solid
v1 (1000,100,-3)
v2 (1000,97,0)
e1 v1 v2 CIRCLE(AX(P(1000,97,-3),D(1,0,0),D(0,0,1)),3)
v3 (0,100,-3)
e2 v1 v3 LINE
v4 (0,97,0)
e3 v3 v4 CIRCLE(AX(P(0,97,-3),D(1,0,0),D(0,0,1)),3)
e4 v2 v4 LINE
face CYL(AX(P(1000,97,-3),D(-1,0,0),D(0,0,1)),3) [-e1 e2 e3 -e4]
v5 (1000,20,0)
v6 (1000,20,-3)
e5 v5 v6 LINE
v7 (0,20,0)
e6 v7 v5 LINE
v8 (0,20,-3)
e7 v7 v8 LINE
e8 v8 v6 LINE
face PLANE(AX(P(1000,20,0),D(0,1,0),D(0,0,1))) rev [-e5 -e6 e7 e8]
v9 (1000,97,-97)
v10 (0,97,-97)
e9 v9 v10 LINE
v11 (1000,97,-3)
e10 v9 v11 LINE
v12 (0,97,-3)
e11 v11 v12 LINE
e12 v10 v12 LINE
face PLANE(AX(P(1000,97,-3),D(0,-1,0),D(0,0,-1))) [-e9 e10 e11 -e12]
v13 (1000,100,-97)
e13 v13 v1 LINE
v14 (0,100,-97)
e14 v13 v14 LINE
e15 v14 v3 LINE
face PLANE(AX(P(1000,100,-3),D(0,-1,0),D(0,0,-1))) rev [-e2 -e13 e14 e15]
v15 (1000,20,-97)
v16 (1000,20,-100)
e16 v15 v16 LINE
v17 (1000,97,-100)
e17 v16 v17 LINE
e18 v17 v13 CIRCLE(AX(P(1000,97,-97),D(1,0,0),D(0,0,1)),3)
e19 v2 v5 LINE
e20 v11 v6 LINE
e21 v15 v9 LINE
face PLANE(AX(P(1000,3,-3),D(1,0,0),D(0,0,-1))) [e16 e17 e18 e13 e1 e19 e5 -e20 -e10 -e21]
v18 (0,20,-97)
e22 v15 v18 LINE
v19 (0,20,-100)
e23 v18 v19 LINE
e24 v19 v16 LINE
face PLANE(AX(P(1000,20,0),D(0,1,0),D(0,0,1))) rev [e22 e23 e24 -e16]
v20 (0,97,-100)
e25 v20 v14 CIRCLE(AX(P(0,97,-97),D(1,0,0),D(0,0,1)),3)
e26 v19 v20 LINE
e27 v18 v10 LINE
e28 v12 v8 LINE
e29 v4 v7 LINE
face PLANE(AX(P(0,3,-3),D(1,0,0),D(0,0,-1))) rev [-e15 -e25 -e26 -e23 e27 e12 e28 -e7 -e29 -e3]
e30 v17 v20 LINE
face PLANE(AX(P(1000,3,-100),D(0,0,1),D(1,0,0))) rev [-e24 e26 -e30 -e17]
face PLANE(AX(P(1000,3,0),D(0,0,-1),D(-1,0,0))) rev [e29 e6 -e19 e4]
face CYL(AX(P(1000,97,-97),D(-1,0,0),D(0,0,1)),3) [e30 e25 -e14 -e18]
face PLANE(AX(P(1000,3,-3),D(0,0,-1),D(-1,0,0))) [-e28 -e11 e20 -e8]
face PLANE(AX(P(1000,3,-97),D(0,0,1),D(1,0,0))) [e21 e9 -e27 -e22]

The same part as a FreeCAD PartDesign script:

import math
import FreeCAD as App
import Part
import Sketcher
Q = App.Units.Quantity

doc = App.newDocument("Part")
body = doc.addObject("PartDesign::Body", "Body")

# Sketch on YZ plane
sketch1 = body.newObject("Sketcher::SketchObject", "Sketch")
sketch1.AttachmentSupport = (doc.getObject("YZ_Plane"), [""])
sketch1.MapMode = "FlatFace"
sketch1.addGeometry([
    Part.LineSegment(App.Vector(97, 0, 0), App.Vector(3, 0, 0)),  # 0
    Part.ArcOfCircle(Part.Circle(App.Vector(3, -3, 0), App.Vector(0, 0, 1), 3), math.radians(90), math.radians(180)),  # 1
    Part.LineSegment(App.Vector(0, -3, 0), App.Vector(0, -97, 0)),  # 2
    Part.ArcOfCircle(Part.Circle(App.Vector(3, -97, 0), App.Vector(0, 0, 1), 3), math.radians(180), math.radians(270)),  # 3
    Part.LineSegment(App.Vector(3, -100, 0), App.Vector(97, -100, 0)),  # 4
    Part.ArcOfCircle(Part.Circle(App.Vector(97, -97, 0), App.Vector(0, 0, 1), 3), math.radians(-90), math.radians(0)),  # 5
    Part.LineSegment(App.Vector(100, -97, 0), App.Vector(100, -3, 0)),  # 6
    Part.ArcOfCircle(Part.Circle(App.Vector(97, -3, 0), App.Vector(0, 0, 1), 3), math.radians(0), math.radians(90)),  # 7
    Part.LineSegment(App.Vector(3, -97, 0), App.Vector(3, -3, 0)),  # 8
    Part.LineSegment(App.Vector(3, -3, 0), App.Vector(97, -3, 0)),  # 9
    Part.LineSegment(App.Vector(97, -3, 0), App.Vector(97, -97, 0)),  # 10
    Part.LineSegment(App.Vector(97, -97, 0), App.Vector(3, -97, 0)),  # 11
], False)
sketch1.addConstraint([
    Sketcher.Constraint("Tangent", 0, 2, 1, 1),
    Sketcher.Constraint("Tangent", 1, 2, 2, 1),
    Sketcher.Constraint("Tangent", 2, 2, 3, 1),
    Sketcher.Constraint("Tangent", 3, 2, 4, 1),
    Sketcher.Constraint("Tangent", 4, 2, 5, 1),
    Sketcher.Constraint("Tangent", 5, 2, 6, 1),
    Sketcher.Constraint("Tangent", 6, 2, 7, 1),
    Sketcher.Constraint("Tangent", 7, 2, 0, 1),
    Sketcher.Constraint("Coincident", 8, 2, 9, 1),
    Sketcher.Constraint("Coincident", 9, 2, 10, 1),
    Sketcher.Constraint("Coincident", 10, 2, 11, 1),
    Sketcher.Constraint("Coincident", 11, 2, 8, 1),
    Sketcher.Constraint("Horizontal", 0),
    Sketcher.Constraint("Vertical", 2),
    Sketcher.Constraint("Horizontal", 4),
    Sketcher.Constraint("Vertical", 6),
    Sketcher.Constraint("Vertical", 8),
    Sketcher.Constraint("Horizontal", 9),
    Sketcher.Constraint("Vertical", 10),
    Sketcher.Constraint("Horizontal", 11),
    Sketcher.Constraint("Coincident", 8, 2, 1, 3),
    Sketcher.Constraint("Coincident", 9, 2, 7, 3),
    Sketcher.Constraint("Coincident", 10, 2, 5, 3),
    Sketcher.Constraint("Equal", 1, 3),
    Sketcher.Constraint("PointOnObject", 0, 2, -1),
    Sketcher.Constraint("PointOnObject", 1, 2, -2),
    Sketcher.Constraint("Equal", 11, 2),
    Sketcher.Constraint("Radius", 1, Q("3 mm")),
    Sketcher.Constraint("DistanceX", 0, 2, 0, 1, Q("94 mm")),
])
pad1 = body.newObject("PartDesign::Pad", "Pad")
pad1.Profile = sketch1
pad1.Length = 1000

# Sketch on XY plane
sketch2 = body.newObject("Sketcher::SketchObject", "Sketch001")
sketch2.AttachmentSupport = (doc.getObject("XY_Plane"), [""])
sketch2.MapMode = "FlatFace"
sketch2.AttachmentOffset = App.Placement(App.Vector(0, 0, -100), App.Rotation())
sketch2.addGeometry([
    Part.LineSegment(App.Vector(1000, 20, 0), App.Vector(1000, 0, 0)),
    Part.LineSegment(App.Vector(1000, 0, 0), App.Vector(0, 0, 0)),
    Part.LineSegment(App.Vector(0, 0, 0), App.Vector(0, 20, 0)),
    Part.LineSegment(App.Vector(0, 20, 0), App.Vector(1000, 20, 0)),
], False)
sketch2.addConstraint([
    Sketcher.Constraint("Coincident", 0, 2, 1, 1),
    Sketcher.Constraint("Coincident", 1, 2, 2, 1),
    Sketcher.Constraint("Coincident", 2, 2, 3, 1),
    Sketcher.Constraint("Coincident", 3, 2, 0, 1),
    Sketcher.Constraint("Vertical", 0),
    Sketcher.Constraint("Horizontal", 1),
    Sketcher.Constraint("Vertical", 2),
    Sketcher.Constraint("Horizontal", 3),
    Sketcher.Constraint("Coincident", 1, 2, -1, 1),
    Sketcher.Constraint("DistanceX", 1, 2, 1, 1, Q("1000 mm")),
    Sketcher.Constraint("DistanceY", 0, 2, 0, 1, Q("20 mm")),
])
pocket1 = body.newObject("PartDesign::Pocket", "Pocket")
pocket1.Profile = sketch2
pocket1.Type = "ThroughAll"
pocket1.Reversed = True

doc.recompute()
